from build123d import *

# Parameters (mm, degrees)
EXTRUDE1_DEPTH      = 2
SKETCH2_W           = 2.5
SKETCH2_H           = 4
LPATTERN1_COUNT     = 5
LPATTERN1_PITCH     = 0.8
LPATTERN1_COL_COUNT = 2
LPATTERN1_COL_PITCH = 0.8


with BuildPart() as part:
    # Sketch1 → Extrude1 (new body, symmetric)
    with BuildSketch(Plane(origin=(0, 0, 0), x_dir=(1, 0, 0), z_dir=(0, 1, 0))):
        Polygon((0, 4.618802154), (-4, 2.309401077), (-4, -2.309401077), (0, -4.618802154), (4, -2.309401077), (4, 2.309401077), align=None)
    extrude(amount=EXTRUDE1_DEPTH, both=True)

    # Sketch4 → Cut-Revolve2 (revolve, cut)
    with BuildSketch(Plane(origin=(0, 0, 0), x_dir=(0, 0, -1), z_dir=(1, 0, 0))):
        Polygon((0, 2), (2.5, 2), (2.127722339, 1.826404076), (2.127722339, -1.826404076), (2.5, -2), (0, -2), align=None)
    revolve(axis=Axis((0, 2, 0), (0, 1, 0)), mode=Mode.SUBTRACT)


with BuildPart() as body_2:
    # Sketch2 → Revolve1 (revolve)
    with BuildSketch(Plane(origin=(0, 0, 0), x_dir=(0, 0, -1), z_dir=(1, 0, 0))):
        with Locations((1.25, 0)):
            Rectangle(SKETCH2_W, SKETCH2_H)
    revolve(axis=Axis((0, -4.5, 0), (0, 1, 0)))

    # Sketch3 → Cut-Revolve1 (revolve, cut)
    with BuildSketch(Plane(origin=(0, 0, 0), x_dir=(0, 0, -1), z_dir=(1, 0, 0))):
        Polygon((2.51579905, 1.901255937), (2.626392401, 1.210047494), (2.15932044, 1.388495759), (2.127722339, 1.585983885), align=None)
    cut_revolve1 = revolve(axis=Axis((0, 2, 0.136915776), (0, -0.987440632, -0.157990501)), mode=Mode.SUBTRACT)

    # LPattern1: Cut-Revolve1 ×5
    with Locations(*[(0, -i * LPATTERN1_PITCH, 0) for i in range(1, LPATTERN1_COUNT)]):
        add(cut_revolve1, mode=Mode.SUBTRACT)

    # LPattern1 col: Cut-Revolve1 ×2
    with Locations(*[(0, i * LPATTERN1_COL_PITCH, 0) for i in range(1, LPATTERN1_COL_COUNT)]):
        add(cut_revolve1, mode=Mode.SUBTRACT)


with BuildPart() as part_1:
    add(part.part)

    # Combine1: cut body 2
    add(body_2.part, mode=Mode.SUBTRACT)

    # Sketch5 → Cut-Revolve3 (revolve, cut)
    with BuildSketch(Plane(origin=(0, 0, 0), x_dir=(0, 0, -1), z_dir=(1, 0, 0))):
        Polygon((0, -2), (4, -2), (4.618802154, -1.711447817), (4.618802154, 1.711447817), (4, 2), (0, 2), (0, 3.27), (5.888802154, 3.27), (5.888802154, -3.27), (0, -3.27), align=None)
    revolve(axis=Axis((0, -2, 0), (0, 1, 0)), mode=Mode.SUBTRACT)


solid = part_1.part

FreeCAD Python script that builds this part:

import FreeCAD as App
import Part
import Sketcher
Q = App.Units.Quantity


def add_polygon(sketch, points):
    """Adds a closed chain of lines whose ends are joined by coincident constraints."""
    first, n = sketch.GeometryCount, len(points)
    for a, b in zip(points, points[1:] + points[:1]):
        sketch.addGeometry(Part.LineSegment(App.Vector(*a, 0), App.Vector(*b, 0)), False)
    for i in range(n):
        sketch.addConstraint(Sketcher.Constraint("Coincident", first + i, 2, first + (i + 1) % n, 1))

doc = App.newDocument("Part")
body = doc.addObject("PartDesign::Body", "Body")

# Sketch on XZ plane
sketch1 = doc.addObject("Sketcher::SketchObject", "Sketch")
body.addObject(sketch1)
sketch1.AttachmentSupport = (doc.XZ_Plane, [""])
sketch1.MapMode = "FlatFace"
add_polygon(sketch1, [(0, -4.6), (-4, -2.3), (-4, 2.3), (0, 4.6), (4, 2.3), (4, -2.3)])  # lines 0-5
sketch1.addConstraint(Sketcher.Constraint("Vertical", 1))
sketch1.addConstraint(Sketcher.Constraint("Vertical", 4))
sketch1.addConstraint(Sketcher.Constraint("Symmetric", 0, 2, 3, 2, -1, 1))
sketch1.addConstraint(Sketcher.Constraint("Symmetric", 2, 2, 5, 2, -1, 1))
sketch1.addConstraint(Sketcher.Constraint("PointOnObject", 2, 2, -2))
sketch1.addConstraint(Sketcher.Constraint("Parallel", 2, 5))
sketch1.addConstraint(Sketcher.Constraint("Horizontal", 1, 2, 3, 2))
sketch1.addConstraint(Sketcher.Constraint("Angle", 0, Q("150 deg")))
sketch1.addConstraint(Sketcher.Constraint("DistanceX", 0, 2, -1, 1, 4.0))
sketch1.addConstraint(Sketcher.Constraint("DistanceY", 0, 2, -1, 1, 2.309401))
pad1 = doc.addObject("PartDesign::Pad", "Pad")
body.addObject(pad1)
pad1.Profile = sketch1
pad1.Length = 4
pad1.Midplane = True

# Sketch on YZ plane
sketch2 = doc.addObject("Sketcher::SketchObject", "Sketch001")
body.addObject(sketch2)
sketch2.AttachmentSupport = (doc.YZ_Plane, [""])
sketch2.MapMode = "FlatFace"
add_polygon(sketch2, [(2, -2.5), (2, 0), (-2, 0), (-2, -2.5), (-1.83, -2.13), (1.83, -2.13)])  # lines 0-5
sketch2.addConstraint(Sketcher.Constraint("Vertical", 0))
sketch2.addConstraint(Sketcher.Constraint("Horizontal", 1))
sketch2.addConstraint(Sketcher.Constraint("Vertical", 2))
sketch2.addConstraint(Sketcher.Constraint("Horizontal", 4))
sketch2.addConstraint(Sketcher.Constraint("Symmetric", 0, 2, 1, 2, -1, 1))
sketch2.addConstraint(Sketcher.Constraint("Horizontal", 2, 2, 5, 2))
sketch2.addConstraint(Sketcher.Constraint("Equal", 3, 5))
sketch2.addConstraint(Sketcher.Constraint("DistanceX", 1, 2, 1, 1, 4.0))
sketch2.addConstraint(Sketcher.Constraint("Angle", 3, Q("65 deg")))
sketch2.addConstraint(Sketcher.Constraint("DistanceY", 0, 1, 0, 2, 2.5))
sketch2.addConstraint(Sketcher.Constraint("DistanceX", 4, 1, 4, 2, 3.652808))
groove = doc.addObject("PartDesign::Groove", "Groove")
body.addObject(groove)
groove.Profile = sketch2
groove.ReferenceAxis = (sketch2, ["H_Axis"])
groove.Angle = 360
body2 = doc.addObject("PartDesign::Body", "Body001")

# Sketch on YZ plane
sketch3 = doc.addObject("Sketcher::SketchObject", "Sketch002")
body2.addObject(sketch3)
sketch3.AttachmentSupport = (doc.getObject("YZ_Plane001"), [""])
sketch3.MapMode = "FlatFace"
add_polygon(sketch3, [(2, 0), (-2, 0), (-2, -2.5), (2, -2.5)])  # lines 0-3
sketch3.addConstraint(Sketcher.Constraint("Horizontal", 0))
sketch3.addConstraint(Sketcher.Constraint("Vertical", 1))
sketch3.addConstraint(Sketcher.Constraint("Horizontal", 2))
sketch3.addConstraint(Sketcher.Constraint("Vertical", 3))
sketch3.addConstraint(Sketcher.Constraint("Symmetric", 0, 2, 3, 2, -1, 1))
sketch3.addConstraint(Sketcher.Constraint("DistanceX", 0, 2, 0, 1, 4.0))
sketch3.addConstraint(Sketcher.Constraint("DistanceY", 1, 2, 1, 1, 2.5))
revolution = doc.addObject("PartDesign::Revolution", "Revolution")
body2.addObject(revolution)
revolution.Profile = sketch3
revolution.ReferenceAxis = (sketch3, ["H_Axis"])
revolution.Angle = 360

# Sketch on YZ plane
sketch4 = doc.addObject("Sketcher::SketchObject", "Sketch003")
body2.addObject(sketch4)
sketch4.AttachmentSupport = (doc.getObject("YZ_Plane001"), [""])
sketch4.MapMode = "FlatFace"
add_polygon(sketch4, [(1.21, -2.63), (1.9, -2.52), (1.59, -2.13), (1.39, -2.16)])  # lines 0-3
sketch4.addGeometry(Part.LineSegment(App.Vector(1.49, 0.06, 0), App.Vector(0.8, -0.06, 0)), True)  # axis
sketch4.addConstraint(Sketcher.Constraint("Parallel", 0, 2))
sketch4.addConstraint(Sketcher.Constraint("Parallel", 2, 4))
sketch4.addConstraint(Sketcher.Constraint("Equal", 1, 3))
sketch4.addConstraint(Sketcher.Constraint("Equal", 0, 4))
sketch4.addConstraint(Sketcher.Constraint("Distance", 0, 0.7))
sketch4.addConstraint(Sketcher.Constraint("Distance", 1, 0.5))
sketch4.addConstraint(Sketcher.Constraint("Distance", 2, 0.2))
sketch4.addConstraint(Sketcher.Constraint("DistanceY", 0, 2, -1, 1, 2.515799))
sketch4.addConstraint(Sketcher.Constraint("DistanceY", 2, 2, 1, 2, 0.031598))
sketch4.addConstraint(Sketcher.Constraint("DistanceX", -1, 1, 4, 1, 1.489881))
sketch4.addConstraint(Sketcher.Constraint("DistanceY", 1, 2, 4, 1, 2.183019))
sketch4.addConstraint(Sketcher.Constraint("DistanceX", 4, 2, 1, 2, 0.787312))
groove2 = doc.addObject("PartDesign::Groove", "Groove001")
body2.addObject(groove2)
groove2.Profile = sketch4
groove2.ReferenceAxis = (sketch4, ["Axis0"])
groove2.Angle = 360
doc.recompute()

linearpattern = doc.addObject("PartDesign::LinearPattern", "LinearPattern")
body2.addObject(linearpattern)
linearpattern.Originals = [groove2]
linearpattern.Direction = (doc.getObject("Y_Axis001"), [""])
linearpattern.Mode = "offset"
linearpattern.Offset = 0.8
linearpattern.Occurrences = 5
linearpattern.Reversed = True
body2.Tip = linearpattern
doc.recompute()

linearpattern2 = doc.addObject("PartDesign::LinearPattern", "LinearPattern001")
body2.addObject(linearpattern2)
linearpattern2.Originals = [groove2]
linearpattern2.Direction = (doc.getObject("Y_Axis001"), [""])
linearpattern2.Mode = "offset"
linearpattern2.Offset = 0.8
linearpattern2.Occurrences = 2
body2.Tip = linearpattern2
doc.recompute()

boolean = doc.addObject("PartDesign::Boolean", "Boolean")
body.addObject(boolean)
boolean.Type = "Cut"
boolean.addObjects([body2])

# Sketch on YZ plane
sketch5 = doc.addObject("Sketcher::SketchObject", "Sketch004")
body.addObject(sketch5)
sketch5.AttachmentSupport = (doc.YZ_Plane, [""])
sketch5.MapMode = "FlatFace"
add_polygon(sketch5, [(-2, -4), (-2, 0), (-3.3, 0), (-3.3, -5.9), (3.3, -5.9), (3.3, 0), (2, 0), (2, -4), (1.7, -4.6), (-1.7, -4.6)])  # lines 0-9
sketch5.addConstraint(Sketcher.Constraint("Vertical", 0))
sketch5.addConstraint(Sketcher.Constraint("Horizontal", 1))
sketch5.addConstraint(Sketcher.Constraint("Vertical", 2))
sketch5.addConstraint(Sketcher.Constraint("Horizontal", 3))
sketch5.addConstraint(Sketcher.Constraint("Vertical", 4))
sketch5.addConstraint(Sketcher.Constraint("Horizontal", 5))
sketch5.addConstraint(Sketcher.Constraint("Vertical", 6))
sketch5.addConstraint(Sketcher.Constraint("Horizontal", 8))
sketch5.addConstraint(Sketcher.Constraint("Symmetric", 1, 2, 4, 2, -1, 1))
sketch5.addConstraint(Sketcher.Constraint("Symmetric", 0, 2, 5, 2, -2))
sketch5.addConstraint(Sketcher.Constraint("Horizontal", 6, 2, 9, 2))
sketch5.addConstraint(Sketcher.Constraint("Equal", 7, 9))
sketch5.addConstraint(Sketcher.Constraint("DistanceY", 0, 1, 0, 2, 4.0))
sketch5.addConstraint(Sketcher.Constraint("Angle", 7, Q("-115 deg")))
sketch5.addConstraint(Sketcher.Constraint("DistanceX", 0, 2, -1, 1, 2.0))
sketch5.addConstraint(Sketcher.Constraint("DistanceX", 1, 2, 1, 1, 1.27))
sketch5.addConstraint(Sketcher.Constraint("DistanceY", 3, 2, 7, 2, 1.27))
sketch5.addConstraint(Sketcher.Constraint("DistanceX", 8, 2, 8, 1, 3.422896))
groove3 = doc.addObject("PartDesign::Groove", "Groove002")
body.addObject(groove3)
groove3.Profile = sketch5
groove3.ReferenceAxis = (sketch5, ["H_Axis"])
groove3.Angle = 360

doc.recompute()
